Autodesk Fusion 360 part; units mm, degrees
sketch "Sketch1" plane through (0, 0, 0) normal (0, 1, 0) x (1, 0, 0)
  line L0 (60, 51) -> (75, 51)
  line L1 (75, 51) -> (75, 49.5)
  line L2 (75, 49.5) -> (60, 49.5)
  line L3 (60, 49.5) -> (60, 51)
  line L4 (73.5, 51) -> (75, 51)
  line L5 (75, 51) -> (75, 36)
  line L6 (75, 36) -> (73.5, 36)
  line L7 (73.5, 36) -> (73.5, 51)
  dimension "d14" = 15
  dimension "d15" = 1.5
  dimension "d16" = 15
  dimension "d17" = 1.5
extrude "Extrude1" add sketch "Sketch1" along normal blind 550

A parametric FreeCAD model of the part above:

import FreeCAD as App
import Part
import Sketcher
from FreeCAD import Vector
Q = App.Units.Quantity

doc = App.newDocument("Part")
body = doc.addObject("PartDesign::Body", "Body")

sketch1 = doc.addObject("Sketcher::SketchObject", "Sketch")
body.addObject(sketch1)
sketch1.AttachmentSupport = (doc.XZ_Plane, [""])
sketch1.MapMode = "FlatFace"
sketch1.addGeometry(Part.LineSegment(Vector(60, -51, 0), Vector(60, -49.5, 0)), False)
sketch1.addGeometry(Part.LineSegment(Vector(60, -49.5, 0), Vector(73.5, -49.5, 0)), False)
sketch1.addGeometry(Part.LineSegment(Vector(73.5, -49.5, 0), Vector(73.5, -36, 0)), False)
sketch1.addGeometry(Part.LineSegment(Vector(73.5, -36, 0), Vector(75, -36, 0)), False)
sketch1.addGeometry(Part.LineSegment(Vector(75, -36, 0), Vector(75, -51, 0)), False)
sketch1.addGeometry(Part.LineSegment(Vector(75, -51, 0), Vector(60, -51, 0)), False)
sketch1.addConstraint(Sketcher.Constraint("Coincident", 0, 2, 1, 1))
sketch1.addConstraint(Sketcher.Constraint("Coincident", 1, 2, 2, 1))
sketch1.addConstraint(Sketcher.Constraint("Coincident", 2, 2, 3, 1))
sketch1.addConstraint(Sketcher.Constraint("Coincident", 3, 2, 4, 1))
sketch1.addConstraint(Sketcher.Constraint("Coincident", 4, 2, 5, 1))
sketch1.addConstraint(Sketcher.Constraint("Coincident", 5, 2, 0, 1))
sketch1.addConstraint(Sketcher.Constraint("Vertical", 0))
sketch1.addConstraint(Sketcher.Constraint("Horizontal", 1))
sketch1.addConstraint(Sketcher.Constraint("Vertical", 2))
sketch1.addConstraint(Sketcher.Constraint("Horizontal", 3))
sketch1.addConstraint(Sketcher.Constraint("Vertical", 4))
sketch1.addConstraint(Sketcher.Constraint("Horizontal", 5))
sketch1.addConstraint(Sketcher.Constraint("Equal", 3, 0))
sketch1.addConstraint(Sketcher.Constraint("Equal", 1, 2))
sketch1.addConstraint(Sketcher.Constraint("DistanceX", 5, 2, 5, 1, Q("15 mm")))
sketch1.addConstraint(Sketcher.Constraint("DistanceX", 3, 1, 3, 2, Q("1.5 mm")))
sketch1.addConstraint(Sketcher.Constraint("DistanceX", -1, 1, 0, 2, Q("60 mm")))
sketch1.addConstraint(Sketcher.Constraint("DistanceY", 2, 2, -1, 1, Q("36 mm")))
pad1 = doc.addObject("PartDesign::Pad", "Pad")
body.addObject(pad1)
pad1.Profile = sketch1
pad1.Length = 550
pad1.Reversed = True

doc.recompute()
